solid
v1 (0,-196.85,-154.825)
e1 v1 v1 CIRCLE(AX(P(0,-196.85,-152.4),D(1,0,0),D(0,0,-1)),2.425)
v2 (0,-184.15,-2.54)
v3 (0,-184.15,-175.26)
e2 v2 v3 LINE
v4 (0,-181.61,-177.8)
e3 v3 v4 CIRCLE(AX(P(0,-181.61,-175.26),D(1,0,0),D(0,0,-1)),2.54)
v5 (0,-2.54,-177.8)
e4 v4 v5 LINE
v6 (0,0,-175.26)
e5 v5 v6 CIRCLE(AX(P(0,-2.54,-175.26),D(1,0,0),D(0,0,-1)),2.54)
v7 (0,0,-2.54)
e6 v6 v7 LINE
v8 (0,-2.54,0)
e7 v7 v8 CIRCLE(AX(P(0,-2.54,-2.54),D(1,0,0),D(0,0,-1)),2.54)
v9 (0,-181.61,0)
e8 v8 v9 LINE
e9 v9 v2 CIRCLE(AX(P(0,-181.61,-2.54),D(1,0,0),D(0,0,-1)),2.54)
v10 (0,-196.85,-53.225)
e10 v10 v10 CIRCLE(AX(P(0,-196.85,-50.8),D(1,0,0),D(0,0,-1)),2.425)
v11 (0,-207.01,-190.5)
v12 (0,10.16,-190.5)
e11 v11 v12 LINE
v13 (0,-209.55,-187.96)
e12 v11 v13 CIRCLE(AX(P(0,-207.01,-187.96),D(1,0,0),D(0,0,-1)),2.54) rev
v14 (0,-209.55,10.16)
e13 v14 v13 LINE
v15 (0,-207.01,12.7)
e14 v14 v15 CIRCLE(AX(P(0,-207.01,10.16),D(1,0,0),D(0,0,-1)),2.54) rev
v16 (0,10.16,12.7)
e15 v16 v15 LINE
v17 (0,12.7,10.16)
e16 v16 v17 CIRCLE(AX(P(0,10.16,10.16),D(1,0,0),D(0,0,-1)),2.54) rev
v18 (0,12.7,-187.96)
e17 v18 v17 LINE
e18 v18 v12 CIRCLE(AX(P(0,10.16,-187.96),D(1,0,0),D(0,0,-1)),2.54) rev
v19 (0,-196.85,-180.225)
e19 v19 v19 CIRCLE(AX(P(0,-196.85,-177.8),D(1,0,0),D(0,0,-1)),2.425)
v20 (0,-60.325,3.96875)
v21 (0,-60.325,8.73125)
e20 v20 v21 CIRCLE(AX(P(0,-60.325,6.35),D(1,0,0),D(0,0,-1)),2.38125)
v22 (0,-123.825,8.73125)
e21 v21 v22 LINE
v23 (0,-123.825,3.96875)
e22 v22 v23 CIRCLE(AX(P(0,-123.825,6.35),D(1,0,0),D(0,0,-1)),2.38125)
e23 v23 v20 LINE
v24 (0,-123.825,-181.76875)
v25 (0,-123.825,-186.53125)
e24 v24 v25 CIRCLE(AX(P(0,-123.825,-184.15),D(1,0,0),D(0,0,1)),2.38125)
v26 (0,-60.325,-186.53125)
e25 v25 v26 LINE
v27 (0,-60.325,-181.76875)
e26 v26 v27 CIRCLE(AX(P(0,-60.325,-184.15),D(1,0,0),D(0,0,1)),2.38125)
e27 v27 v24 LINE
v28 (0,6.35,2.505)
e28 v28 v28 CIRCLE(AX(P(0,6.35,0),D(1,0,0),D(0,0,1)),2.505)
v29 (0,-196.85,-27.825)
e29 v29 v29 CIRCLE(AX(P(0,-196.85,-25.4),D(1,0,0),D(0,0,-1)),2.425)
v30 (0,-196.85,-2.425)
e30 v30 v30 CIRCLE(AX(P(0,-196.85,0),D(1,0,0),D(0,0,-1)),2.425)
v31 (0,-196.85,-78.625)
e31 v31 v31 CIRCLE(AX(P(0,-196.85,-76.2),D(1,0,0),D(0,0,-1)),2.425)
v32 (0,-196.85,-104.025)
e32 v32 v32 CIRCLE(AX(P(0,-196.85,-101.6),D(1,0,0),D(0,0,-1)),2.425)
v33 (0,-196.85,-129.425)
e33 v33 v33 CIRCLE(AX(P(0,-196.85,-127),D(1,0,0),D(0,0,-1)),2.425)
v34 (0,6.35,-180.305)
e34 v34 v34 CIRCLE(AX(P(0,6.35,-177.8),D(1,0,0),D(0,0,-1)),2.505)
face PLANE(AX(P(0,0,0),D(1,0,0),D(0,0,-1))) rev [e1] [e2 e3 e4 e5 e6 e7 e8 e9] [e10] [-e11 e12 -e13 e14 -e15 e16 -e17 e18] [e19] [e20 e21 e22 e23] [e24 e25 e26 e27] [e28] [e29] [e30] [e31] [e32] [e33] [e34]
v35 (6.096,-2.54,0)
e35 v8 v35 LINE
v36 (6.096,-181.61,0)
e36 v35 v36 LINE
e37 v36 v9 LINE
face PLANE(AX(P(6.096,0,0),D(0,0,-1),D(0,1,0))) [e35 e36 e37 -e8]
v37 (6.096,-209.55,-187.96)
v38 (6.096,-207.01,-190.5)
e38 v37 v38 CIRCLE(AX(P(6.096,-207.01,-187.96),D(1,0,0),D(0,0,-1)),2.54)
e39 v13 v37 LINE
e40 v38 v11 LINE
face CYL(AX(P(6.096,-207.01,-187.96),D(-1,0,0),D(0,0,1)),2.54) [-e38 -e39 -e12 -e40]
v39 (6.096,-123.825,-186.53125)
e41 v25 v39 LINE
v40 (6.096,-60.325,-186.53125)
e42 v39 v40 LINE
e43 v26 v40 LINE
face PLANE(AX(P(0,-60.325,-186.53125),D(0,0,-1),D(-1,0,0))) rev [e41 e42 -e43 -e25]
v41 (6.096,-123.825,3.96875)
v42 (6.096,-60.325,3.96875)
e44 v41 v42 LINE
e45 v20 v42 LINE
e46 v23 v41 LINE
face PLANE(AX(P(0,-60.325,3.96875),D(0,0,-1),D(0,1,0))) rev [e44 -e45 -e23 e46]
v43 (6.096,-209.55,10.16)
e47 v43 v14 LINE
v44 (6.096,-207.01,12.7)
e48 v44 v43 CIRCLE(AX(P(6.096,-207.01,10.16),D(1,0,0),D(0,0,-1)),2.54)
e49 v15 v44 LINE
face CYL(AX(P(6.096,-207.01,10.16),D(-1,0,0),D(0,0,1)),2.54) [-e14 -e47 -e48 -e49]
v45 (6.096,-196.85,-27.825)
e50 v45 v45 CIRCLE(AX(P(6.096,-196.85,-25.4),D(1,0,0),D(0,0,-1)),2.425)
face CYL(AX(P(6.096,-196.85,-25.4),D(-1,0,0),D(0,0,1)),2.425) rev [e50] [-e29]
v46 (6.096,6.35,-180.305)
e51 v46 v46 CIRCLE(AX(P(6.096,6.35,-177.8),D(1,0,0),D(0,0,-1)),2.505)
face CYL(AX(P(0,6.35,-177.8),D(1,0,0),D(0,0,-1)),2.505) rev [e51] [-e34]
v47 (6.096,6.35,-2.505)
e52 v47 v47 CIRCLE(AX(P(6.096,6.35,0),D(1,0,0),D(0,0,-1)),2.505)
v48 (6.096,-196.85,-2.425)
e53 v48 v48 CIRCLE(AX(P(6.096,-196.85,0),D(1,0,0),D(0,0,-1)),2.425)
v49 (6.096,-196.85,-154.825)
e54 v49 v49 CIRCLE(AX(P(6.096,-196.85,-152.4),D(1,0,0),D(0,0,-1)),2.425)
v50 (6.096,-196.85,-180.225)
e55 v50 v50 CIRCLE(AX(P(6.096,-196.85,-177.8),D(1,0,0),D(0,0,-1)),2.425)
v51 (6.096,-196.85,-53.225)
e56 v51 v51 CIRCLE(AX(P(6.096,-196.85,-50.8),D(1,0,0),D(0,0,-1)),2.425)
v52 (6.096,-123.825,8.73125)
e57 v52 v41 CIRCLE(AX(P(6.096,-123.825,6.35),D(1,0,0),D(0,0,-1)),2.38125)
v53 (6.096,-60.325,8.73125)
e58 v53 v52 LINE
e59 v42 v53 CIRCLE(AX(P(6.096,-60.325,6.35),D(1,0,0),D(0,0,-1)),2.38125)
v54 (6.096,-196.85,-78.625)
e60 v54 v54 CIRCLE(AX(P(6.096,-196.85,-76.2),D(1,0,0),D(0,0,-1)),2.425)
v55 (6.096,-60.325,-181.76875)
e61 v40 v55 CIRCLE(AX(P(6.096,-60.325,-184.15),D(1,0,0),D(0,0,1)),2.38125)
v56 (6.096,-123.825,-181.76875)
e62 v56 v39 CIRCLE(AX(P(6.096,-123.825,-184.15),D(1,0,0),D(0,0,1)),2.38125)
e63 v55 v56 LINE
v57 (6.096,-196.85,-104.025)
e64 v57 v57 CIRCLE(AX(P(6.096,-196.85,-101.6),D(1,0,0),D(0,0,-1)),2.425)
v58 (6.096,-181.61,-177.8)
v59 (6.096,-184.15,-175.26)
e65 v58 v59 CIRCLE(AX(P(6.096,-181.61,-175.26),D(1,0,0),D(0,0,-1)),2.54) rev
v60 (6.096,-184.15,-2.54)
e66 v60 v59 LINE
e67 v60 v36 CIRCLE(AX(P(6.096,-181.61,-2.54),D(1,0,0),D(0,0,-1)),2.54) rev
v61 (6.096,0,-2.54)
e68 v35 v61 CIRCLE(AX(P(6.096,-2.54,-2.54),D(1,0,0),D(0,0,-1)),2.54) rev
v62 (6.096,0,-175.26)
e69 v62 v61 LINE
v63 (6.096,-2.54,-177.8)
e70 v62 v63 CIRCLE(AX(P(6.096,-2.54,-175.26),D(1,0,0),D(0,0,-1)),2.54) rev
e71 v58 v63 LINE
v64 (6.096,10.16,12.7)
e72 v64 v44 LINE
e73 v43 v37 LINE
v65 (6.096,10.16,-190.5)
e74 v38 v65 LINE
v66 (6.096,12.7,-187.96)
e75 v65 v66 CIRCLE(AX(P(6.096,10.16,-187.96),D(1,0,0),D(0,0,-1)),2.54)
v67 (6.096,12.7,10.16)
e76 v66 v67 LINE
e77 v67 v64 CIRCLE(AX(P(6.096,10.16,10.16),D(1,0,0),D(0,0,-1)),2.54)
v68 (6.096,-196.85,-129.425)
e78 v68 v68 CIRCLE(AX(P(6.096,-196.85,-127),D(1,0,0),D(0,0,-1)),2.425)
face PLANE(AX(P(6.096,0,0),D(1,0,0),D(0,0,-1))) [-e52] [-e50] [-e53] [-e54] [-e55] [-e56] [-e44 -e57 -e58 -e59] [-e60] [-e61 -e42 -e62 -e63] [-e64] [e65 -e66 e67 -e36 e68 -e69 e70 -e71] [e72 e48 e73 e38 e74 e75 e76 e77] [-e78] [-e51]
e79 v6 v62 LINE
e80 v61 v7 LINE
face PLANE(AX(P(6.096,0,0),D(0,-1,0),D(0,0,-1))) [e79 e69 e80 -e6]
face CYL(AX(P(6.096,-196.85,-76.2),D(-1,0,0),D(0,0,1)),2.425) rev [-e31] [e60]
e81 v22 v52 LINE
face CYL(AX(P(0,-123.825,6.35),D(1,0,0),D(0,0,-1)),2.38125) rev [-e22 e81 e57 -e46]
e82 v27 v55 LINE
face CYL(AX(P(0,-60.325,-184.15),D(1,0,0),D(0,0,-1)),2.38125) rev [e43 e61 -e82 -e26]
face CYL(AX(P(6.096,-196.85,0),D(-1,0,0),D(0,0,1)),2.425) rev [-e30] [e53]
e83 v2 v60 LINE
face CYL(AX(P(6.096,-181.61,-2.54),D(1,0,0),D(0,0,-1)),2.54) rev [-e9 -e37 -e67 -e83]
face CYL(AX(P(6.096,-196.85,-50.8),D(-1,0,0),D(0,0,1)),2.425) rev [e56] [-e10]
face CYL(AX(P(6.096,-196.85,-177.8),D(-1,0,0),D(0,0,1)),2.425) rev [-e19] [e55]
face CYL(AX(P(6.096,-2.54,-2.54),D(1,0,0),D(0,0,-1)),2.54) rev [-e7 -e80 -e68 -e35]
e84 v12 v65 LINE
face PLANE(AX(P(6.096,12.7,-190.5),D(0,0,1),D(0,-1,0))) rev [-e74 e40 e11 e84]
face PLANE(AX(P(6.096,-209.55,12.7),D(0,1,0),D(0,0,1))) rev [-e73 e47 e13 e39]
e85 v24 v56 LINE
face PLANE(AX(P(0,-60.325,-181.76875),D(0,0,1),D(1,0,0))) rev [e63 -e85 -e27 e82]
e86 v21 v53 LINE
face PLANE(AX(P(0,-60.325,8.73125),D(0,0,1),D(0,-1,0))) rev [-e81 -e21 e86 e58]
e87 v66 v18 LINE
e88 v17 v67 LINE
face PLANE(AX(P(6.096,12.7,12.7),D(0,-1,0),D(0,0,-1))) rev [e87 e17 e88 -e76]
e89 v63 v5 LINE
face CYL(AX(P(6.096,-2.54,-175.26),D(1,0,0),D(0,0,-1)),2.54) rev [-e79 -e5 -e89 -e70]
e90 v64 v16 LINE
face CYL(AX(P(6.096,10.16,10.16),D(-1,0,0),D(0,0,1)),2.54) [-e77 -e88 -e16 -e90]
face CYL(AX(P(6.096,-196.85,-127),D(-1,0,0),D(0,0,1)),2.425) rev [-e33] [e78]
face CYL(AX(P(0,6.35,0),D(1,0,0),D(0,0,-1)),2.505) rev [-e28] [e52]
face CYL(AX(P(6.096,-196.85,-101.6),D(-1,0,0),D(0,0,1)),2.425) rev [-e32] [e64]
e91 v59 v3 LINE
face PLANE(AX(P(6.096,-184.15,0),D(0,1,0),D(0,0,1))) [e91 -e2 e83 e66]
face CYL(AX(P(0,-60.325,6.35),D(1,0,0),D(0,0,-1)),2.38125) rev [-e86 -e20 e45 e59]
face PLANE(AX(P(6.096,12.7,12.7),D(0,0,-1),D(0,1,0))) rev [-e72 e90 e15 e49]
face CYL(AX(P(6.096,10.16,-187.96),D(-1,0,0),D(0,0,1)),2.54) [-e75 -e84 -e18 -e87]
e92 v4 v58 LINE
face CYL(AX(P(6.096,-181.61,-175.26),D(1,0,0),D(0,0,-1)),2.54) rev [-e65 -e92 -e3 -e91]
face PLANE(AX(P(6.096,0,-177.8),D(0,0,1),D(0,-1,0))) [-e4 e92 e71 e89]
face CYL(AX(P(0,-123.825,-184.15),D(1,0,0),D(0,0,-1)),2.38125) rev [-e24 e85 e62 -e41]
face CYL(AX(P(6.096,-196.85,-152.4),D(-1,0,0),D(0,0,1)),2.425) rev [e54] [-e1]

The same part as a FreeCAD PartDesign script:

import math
import FreeCAD as App
import Part
import Sketcher

V = App.Vector
Q = App.Units.Quantity


def edges_at(feature, points):
    """Names of the edges that pass closest to the given points."""
    edges = feature.Shape.Edges
    near = lambda p: min(range(len(edges)), key=lambda i: edges[i].distToShape(Part.Vertex(*p))[0])
    return sorted({f"Edge{near(p) + 1}" for p in points})


def add_polygon(sketch, points):
    """Adds a closed chain of lines whose ends are joined by coincident constraints."""
    first, n = sketch.GeometryCount, len(points)
    for a, b in zip(points, points[1:] + points[:1]):
        sketch.addGeometry(Part.LineSegment(App.Vector(*a, 0), App.Vector(*b, 0)), False)
    for i in range(n):
        sketch.addConstraint(Sketcher.Constraint("Coincident", first + i, 2, first + (i + 1) % n, 1))

doc = App.newDocument("Part")
params = doc.addObject("Spreadsheet::Sheet", "Params")
for row, (alias, value) in enumerate([
    ("sketch1_height", "8 in"),
    ("sketch1_height2", "7 in"),
    ("sketch1_width", "8.75 in"),
    ("sketch1_width2", "7.25 in"),
    ("pad1_length", "0.24 in"),
    ("fillet_radius", "0.1 in"),
    ("sketch2_width", "2.5 in"),
    ("sketch2_radius", "0.09375 in"),
], start=1):
    params.set(f"A{row}", alias)
    params.set(f"B{row}", "=" + value)
    params.setAlias(f"B{row}", alias)

body = doc.addObject("PartDesign::Body", "Body")

# Sketch on YZ plane
sketch1 = doc.addObject("Sketcher::SketchObject", "Sketch")
body.addObject(sketch1)
sketch1.AttachmentSupport = (doc.YZ_Plane, [""])
sketch1.MapMode = "FlatFace"
add_polygon(sketch1, [(12.7, 12.7), (-209.6, 12.7), (-209.6, -190.5), (12.7, -190.5)])  # lines 0-3
sketch1.addGeometry(Part.Circle(V(-196.8, 0, 0), V(0, 0, 1), 2.4), False)  # 4
sketch1.addGeometry(Part.Circle(V(-196.8, -25.4, 0), V(0, 0, 1), 2.4), False)  # 5
sketch1.addGeometry(Part.Circle(V(-196.8, -50.8, 0), V(0, 0, 1), 2.4), False)  # 6
sketch1.addGeometry(Part.Circle(V(-196.8, -76.2, 0), V(0, 0, 1), 2.4), False)  # 7
sketch1.addGeometry(Part.Circle(V(-196.8, -101.6, 0), V(0, 0, 1), 2.4), False)  # 8
sketch1.addGeometry(Part.Circle(V(-196.8, -127, 0), V(0, 0, 1), 2.4), False)  # 9
sketch1.addGeometry(Part.Circle(V(-196.8, -152.4, 0), V(0, 0, 1), 2.4), False)  # 10
sketch1.addGeometry(Part.Circle(V(-196.8, -177.8, 0), V(0, 0, 1), 2.4), False)  # 11
add_polygon(sketch1, [(-184.2, -177.8), (-184.2, 0), (0, 0), (0, -177.8)])  # lines 12-15
sketch1.addConstraint(Sketcher.Constraint("Horizontal", 0))
sketch1.addConstraint(Sketcher.Constraint("Vertical", 1))
sketch1.addConstraint(Sketcher.Constraint("Horizontal", 2))
sketch1.addConstraint(Sketcher.Constraint("Vertical", 3))
sketch1.addConstraint(Sketcher.Constraint("Vertical", 12))
sketch1.addConstraint(Sketcher.Constraint("Horizontal", 13))
sketch1.addConstraint(Sketcher.Constraint("Vertical", 14))
sketch1.addConstraint(Sketcher.Constraint("Horizontal", 15))
sketch1.addConstraint(Sketcher.Constraint("Coincident", 13, 2, -1, 1))
sketch1.addConstraint(Sketcher.Constraint("Equal", 4, 5))
sketch1.addConstraint(Sketcher.Constraint("Equal", 5, 6))
sketch1.addConstraint(Sketcher.Constraint("Equal", 6, 7))
sketch1.addConstraint(Sketcher.Constraint("Equal", 7, 8))
sketch1.addConstraint(Sketcher.Constraint("Equal", 8, 9))
sketch1.addConstraint(Sketcher.Constraint("Equal", 9, 10))
sketch1.addConstraint(Sketcher.Constraint("Equal", 10, 11))
sketch1.addConstraint(Sketcher.Constraint("PointOnObject", 4, 3, -1))
sketch1.addConstraint(Sketcher.Constraint("Horizontal", 11, 3, 14, 2))
sketch1.addConstraint(Sketcher.Constraint("Vertical", 4, 3, 5, 3))
sketch1.addConstraint(Sketcher.Constraint("Vertical", 5, 3, 6, 3))
sketch1.addConstraint(Sketcher.Constraint("Vertical", 6, 3, 7, 3))
sketch1.addConstraint(Sketcher.Constraint("Vertical", 7, 3, 8, 3))
sketch1.addConstraint(Sketcher.Constraint("Vertical", 8, 3, 9, 3))
sketch1.addConstraint(Sketcher.Constraint("Vertical", 9, 3, 10, 3))
sketch1.addConstraint(Sketcher.Constraint("Vertical", 10, 3, 11, 3))
sketch1.addConstraint(Sketcher.Constraint("DistanceY", 1, 2, 1, 1, Q("8 in")))
sketch1.addConstraint(Sketcher.Constraint("DistanceY", 12, 1, 12, 2, Q("7 in")))
sketch1.addConstraint(Sketcher.Constraint("DistanceY", 5, 3, -1, 1, Q("1 in")))
sketch1.addConstraint(Sketcher.Constraint("DistanceY", 6, 3, -1, 1, Q("2 in")))
sketch1.addConstraint(Sketcher.Constraint("DistanceY", 7, 3, -1, 1, Q("3 in")))
sketch1.addConstraint(Sketcher.Constraint("DistanceY", 8, 3, -1, 1, Q("4 in")))
sketch1.addConstraint(Sketcher.Constraint("DistanceY", 9, 3, -1, 1, Q("5 in")))
sketch1.addConstraint(Sketcher.Constraint("DistanceY", 10, 3, -1, 1, Q("6 in")))
sketch1.addConstraint(Sketcher.Constraint("DistanceX", 0, 2, 12, 2, Q("1 in")))
sketch1.addConstraint(Sketcher.Constraint("DistanceX", 0, 2, 0, 1, Q("8.75 in")))
sketch1.addConstraint(Sketcher.Constraint("DistanceX", 13, 1, 13, 2, Q("7.25 in")))
sketch1.addConstraint(Sketcher.Constraint("DistanceY", -1, 1, 0, 2, Q("0.5 in")))
sketch1.addConstraint(Sketcher.Constraint("DistanceX", 0, 2, 4, 3, Q("0.5 in")))
sketch1.addConstraint(Sketcher.Constraint("Diameter", 4, 4.85))
sketch1.setExpression("Constraints[33]", "Params.sketch1_height")
sketch1.setExpression("Constraints[34]", "Params.sketch1_height2")
sketch1.setExpression("Constraints[42]", "Params.sketch1_width")
sketch1.setExpression("Constraints[43]", "Params.sketch1_width2")
pad1 = doc.addObject("PartDesign::Pad", "Pad")
body.addObject(pad1)
pad1.Profile = sketch1
pad1.setExpression("Length", "Params.pad1_length")
doc.recompute()

fillet = doc.addObject("PartDesign::Fillet", "Fillet")
body.addObject(fillet)
fillet.Base = (pad1, edges_at(pad1, [
    (3.048, 0, 0),
    (3.048, -184.15, 0),
    (3.048, -184.15, -177.8),
    (3.048, 0, -177.8),
    (3.048, 12.7, 12.7),
    (3.048, 12.7, -190.5),
    (3.048, -209.55, -190.5),
    (3.048, -209.55, 12.7),
]))
fillet.setExpression("Radius", "Params.fillet_radius")

# Sketch on YZ plane
sketch2 = doc.addObject("Sketcher::SketchObject", "Sketch001")
body.addObject(sketch2)
sketch2.AttachmentSupport = (doc.YZ_Plane, [""])
sketch2.MapMode = "FlatFace"
sketch2.AttachmentOffset = App.Placement(V(0, 0, 0.24 * 25.4), App.Rotation())
sketch2.addGeometry(Part.LineSegment(V(-123.8, 4, 0), V(-60.3, 4, 0)), False)
sketch2.addGeometry(Part.ArcOfCircle(Part.Circle(V(-60.3, 6.3, 0), V(0, 0, 1), 2.4), math.radians(-90), math.radians(90)), False)
sketch2.addGeometry(Part.LineSegment(V(-60.3, 8.7, 0), V(-123.8, 8.7, 0)), False)
sketch2.addGeometry(Part.ArcOfCircle(Part.Circle(V(-123.8, 6.3, 0), V(0, 0, 1), 2.4), math.radians(90), math.radians(270)), False)
sketch2.addGeometry(Part.LineSegment(V(-60.3, -181.8, 0), V(-123.8, -181.8, 0)), False)
sketch2.addGeometry(Part.ArcOfCircle(Part.Circle(V(-123.8, -184.2, 0), V(0, 0, 1), 2.4), math.radians(90), math.radians(270)), False)
sketch2.addGeometry(Part.LineSegment(V(-123.8, -186.5, 0), V(-60.3, -186.5, 0)), False)
sketch2.addGeometry(Part.ArcOfCircle(Part.Circle(V(-60.3, -184.2, 0), V(0, 0, 1), 2.4), math.radians(-90), math.radians(90)), False)
sketch2.addConstraint(Sketcher.Constraint("Tangent", 0, 2, 1, 1))
sketch2.addConstraint(Sketcher.Constraint("Tangent", 1, 2, 2, 1))
sketch2.addConstraint(Sketcher.Constraint("Tangent", 2, 2, 3, 1))
sketch2.addConstraint(Sketcher.Constraint("Tangent", 3, 2, 0, 1))
sketch2.addConstraint(Sketcher.Constraint("Tangent", 4, 2, 5, 1))
sketch2.addConstraint(Sketcher.Constraint("Tangent", 5, 2, 6, 1))
sketch2.addConstraint(Sketcher.Constraint("Tangent", 6, 2, 7, 1))
sketch2.addConstraint(Sketcher.Constraint("Tangent", 7, 2, 4, 1))
sketch2.addConstraint(Sketcher.Constraint("Horizontal", 0))
sketch2.addConstraint(Sketcher.Constraint("Horizontal", 2))
sketch2.addConstraint(Sketcher.Constraint("Horizontal", 4))
sketch2.addConstraint(Sketcher.Constraint("Horizontal", 6))
sketch2.addConstraint(Sketcher.Constraint("Equal", 3, 5))
sketch2.addConstraint(Sketcher.Constraint("Vertical", 3, 3, 5, 3))
sketch2.addConstraint(Sketcher.Constraint("Vertical", 1, 3, 7, 3))
sketch2.addConstraint(Sketcher.Constraint("DistanceX", 0, 1, 0, 2, Q("2.5 in")))
sketch2.addConstraint(Sketcher.Constraint("Radius", 1, Q("0.09375 in")))
sketch2.addConstraint(Sketcher.Constraint("DistanceY", 5, 3, 3, 3, Q("7.5 in")))
sketch2.addConstraint(Sketcher.Constraint("DistanceY", -1, 1, 1, 3, Q("0.25 in")))
sketch2.addConstraint(Sketcher.Constraint("DistanceX", 1, 3, -1, 1, Q("2.375 in")))
sketch2.setExpression("Constraints[15]", "Params.sketch2_width")
sketch2.setExpression("Constraints[16]", "Params.sketch2_radius")
pocket1 = doc.addObject("PartDesign::Pocket", "Pocket")
body.addObject(pocket1)
pocket1.Profile = sketch2
pocket1.Type = "ThroughAll"

# Sketch on YZ plane
sketch3 = doc.addObject("Sketcher::SketchObject", "Sketch002")
body.addObject(sketch3)
sketch3.AttachmentSupport = (doc.YZ_Plane, [""])
sketch3.MapMode = "FlatFace"
sketch3.AttachmentOffset = App.Placement(V(0, 0, 0.24 * 25.4), App.Rotation())
sketch3.addGeometry(Part.Circle(V(6.3, -177.8, 0), V(0, 0, 1), 2.5), False)
sketch3.addGeometry(Part.Circle(V(6.3, 0, 0), V(0, 0, 1), 2.5), False)
sketch3.addConstraint(Sketcher.Constraint("Equal", 0, 1))
sketch3.addConstraint(Sketcher.Constraint("PointOnObject", 1, 3, -1))
sketch3.addConstraint(Sketcher.Constraint("Vertical", 0, 3, 1, 3))
sketch3.addConstraint(Sketcher.Constraint("DistanceY", 0, 3, -1, 1, Q("7 in")))
sketch3.addConstraint(Sketcher.Constraint("Diameter", 0, 5.01))
sketch3.addConstraint(Sketcher.Constraint("DistanceX", -1, 1, 0, 3, Q("0.25 in")))
pocket2 = doc.addObject("PartDesign::Pocket", "Pocket001")
body.addObject(pocket2)
pocket2.Profile = sketch3
pocket2.Type = "ThroughAll"
pocket2.Midplane = True

doc.recompute()
